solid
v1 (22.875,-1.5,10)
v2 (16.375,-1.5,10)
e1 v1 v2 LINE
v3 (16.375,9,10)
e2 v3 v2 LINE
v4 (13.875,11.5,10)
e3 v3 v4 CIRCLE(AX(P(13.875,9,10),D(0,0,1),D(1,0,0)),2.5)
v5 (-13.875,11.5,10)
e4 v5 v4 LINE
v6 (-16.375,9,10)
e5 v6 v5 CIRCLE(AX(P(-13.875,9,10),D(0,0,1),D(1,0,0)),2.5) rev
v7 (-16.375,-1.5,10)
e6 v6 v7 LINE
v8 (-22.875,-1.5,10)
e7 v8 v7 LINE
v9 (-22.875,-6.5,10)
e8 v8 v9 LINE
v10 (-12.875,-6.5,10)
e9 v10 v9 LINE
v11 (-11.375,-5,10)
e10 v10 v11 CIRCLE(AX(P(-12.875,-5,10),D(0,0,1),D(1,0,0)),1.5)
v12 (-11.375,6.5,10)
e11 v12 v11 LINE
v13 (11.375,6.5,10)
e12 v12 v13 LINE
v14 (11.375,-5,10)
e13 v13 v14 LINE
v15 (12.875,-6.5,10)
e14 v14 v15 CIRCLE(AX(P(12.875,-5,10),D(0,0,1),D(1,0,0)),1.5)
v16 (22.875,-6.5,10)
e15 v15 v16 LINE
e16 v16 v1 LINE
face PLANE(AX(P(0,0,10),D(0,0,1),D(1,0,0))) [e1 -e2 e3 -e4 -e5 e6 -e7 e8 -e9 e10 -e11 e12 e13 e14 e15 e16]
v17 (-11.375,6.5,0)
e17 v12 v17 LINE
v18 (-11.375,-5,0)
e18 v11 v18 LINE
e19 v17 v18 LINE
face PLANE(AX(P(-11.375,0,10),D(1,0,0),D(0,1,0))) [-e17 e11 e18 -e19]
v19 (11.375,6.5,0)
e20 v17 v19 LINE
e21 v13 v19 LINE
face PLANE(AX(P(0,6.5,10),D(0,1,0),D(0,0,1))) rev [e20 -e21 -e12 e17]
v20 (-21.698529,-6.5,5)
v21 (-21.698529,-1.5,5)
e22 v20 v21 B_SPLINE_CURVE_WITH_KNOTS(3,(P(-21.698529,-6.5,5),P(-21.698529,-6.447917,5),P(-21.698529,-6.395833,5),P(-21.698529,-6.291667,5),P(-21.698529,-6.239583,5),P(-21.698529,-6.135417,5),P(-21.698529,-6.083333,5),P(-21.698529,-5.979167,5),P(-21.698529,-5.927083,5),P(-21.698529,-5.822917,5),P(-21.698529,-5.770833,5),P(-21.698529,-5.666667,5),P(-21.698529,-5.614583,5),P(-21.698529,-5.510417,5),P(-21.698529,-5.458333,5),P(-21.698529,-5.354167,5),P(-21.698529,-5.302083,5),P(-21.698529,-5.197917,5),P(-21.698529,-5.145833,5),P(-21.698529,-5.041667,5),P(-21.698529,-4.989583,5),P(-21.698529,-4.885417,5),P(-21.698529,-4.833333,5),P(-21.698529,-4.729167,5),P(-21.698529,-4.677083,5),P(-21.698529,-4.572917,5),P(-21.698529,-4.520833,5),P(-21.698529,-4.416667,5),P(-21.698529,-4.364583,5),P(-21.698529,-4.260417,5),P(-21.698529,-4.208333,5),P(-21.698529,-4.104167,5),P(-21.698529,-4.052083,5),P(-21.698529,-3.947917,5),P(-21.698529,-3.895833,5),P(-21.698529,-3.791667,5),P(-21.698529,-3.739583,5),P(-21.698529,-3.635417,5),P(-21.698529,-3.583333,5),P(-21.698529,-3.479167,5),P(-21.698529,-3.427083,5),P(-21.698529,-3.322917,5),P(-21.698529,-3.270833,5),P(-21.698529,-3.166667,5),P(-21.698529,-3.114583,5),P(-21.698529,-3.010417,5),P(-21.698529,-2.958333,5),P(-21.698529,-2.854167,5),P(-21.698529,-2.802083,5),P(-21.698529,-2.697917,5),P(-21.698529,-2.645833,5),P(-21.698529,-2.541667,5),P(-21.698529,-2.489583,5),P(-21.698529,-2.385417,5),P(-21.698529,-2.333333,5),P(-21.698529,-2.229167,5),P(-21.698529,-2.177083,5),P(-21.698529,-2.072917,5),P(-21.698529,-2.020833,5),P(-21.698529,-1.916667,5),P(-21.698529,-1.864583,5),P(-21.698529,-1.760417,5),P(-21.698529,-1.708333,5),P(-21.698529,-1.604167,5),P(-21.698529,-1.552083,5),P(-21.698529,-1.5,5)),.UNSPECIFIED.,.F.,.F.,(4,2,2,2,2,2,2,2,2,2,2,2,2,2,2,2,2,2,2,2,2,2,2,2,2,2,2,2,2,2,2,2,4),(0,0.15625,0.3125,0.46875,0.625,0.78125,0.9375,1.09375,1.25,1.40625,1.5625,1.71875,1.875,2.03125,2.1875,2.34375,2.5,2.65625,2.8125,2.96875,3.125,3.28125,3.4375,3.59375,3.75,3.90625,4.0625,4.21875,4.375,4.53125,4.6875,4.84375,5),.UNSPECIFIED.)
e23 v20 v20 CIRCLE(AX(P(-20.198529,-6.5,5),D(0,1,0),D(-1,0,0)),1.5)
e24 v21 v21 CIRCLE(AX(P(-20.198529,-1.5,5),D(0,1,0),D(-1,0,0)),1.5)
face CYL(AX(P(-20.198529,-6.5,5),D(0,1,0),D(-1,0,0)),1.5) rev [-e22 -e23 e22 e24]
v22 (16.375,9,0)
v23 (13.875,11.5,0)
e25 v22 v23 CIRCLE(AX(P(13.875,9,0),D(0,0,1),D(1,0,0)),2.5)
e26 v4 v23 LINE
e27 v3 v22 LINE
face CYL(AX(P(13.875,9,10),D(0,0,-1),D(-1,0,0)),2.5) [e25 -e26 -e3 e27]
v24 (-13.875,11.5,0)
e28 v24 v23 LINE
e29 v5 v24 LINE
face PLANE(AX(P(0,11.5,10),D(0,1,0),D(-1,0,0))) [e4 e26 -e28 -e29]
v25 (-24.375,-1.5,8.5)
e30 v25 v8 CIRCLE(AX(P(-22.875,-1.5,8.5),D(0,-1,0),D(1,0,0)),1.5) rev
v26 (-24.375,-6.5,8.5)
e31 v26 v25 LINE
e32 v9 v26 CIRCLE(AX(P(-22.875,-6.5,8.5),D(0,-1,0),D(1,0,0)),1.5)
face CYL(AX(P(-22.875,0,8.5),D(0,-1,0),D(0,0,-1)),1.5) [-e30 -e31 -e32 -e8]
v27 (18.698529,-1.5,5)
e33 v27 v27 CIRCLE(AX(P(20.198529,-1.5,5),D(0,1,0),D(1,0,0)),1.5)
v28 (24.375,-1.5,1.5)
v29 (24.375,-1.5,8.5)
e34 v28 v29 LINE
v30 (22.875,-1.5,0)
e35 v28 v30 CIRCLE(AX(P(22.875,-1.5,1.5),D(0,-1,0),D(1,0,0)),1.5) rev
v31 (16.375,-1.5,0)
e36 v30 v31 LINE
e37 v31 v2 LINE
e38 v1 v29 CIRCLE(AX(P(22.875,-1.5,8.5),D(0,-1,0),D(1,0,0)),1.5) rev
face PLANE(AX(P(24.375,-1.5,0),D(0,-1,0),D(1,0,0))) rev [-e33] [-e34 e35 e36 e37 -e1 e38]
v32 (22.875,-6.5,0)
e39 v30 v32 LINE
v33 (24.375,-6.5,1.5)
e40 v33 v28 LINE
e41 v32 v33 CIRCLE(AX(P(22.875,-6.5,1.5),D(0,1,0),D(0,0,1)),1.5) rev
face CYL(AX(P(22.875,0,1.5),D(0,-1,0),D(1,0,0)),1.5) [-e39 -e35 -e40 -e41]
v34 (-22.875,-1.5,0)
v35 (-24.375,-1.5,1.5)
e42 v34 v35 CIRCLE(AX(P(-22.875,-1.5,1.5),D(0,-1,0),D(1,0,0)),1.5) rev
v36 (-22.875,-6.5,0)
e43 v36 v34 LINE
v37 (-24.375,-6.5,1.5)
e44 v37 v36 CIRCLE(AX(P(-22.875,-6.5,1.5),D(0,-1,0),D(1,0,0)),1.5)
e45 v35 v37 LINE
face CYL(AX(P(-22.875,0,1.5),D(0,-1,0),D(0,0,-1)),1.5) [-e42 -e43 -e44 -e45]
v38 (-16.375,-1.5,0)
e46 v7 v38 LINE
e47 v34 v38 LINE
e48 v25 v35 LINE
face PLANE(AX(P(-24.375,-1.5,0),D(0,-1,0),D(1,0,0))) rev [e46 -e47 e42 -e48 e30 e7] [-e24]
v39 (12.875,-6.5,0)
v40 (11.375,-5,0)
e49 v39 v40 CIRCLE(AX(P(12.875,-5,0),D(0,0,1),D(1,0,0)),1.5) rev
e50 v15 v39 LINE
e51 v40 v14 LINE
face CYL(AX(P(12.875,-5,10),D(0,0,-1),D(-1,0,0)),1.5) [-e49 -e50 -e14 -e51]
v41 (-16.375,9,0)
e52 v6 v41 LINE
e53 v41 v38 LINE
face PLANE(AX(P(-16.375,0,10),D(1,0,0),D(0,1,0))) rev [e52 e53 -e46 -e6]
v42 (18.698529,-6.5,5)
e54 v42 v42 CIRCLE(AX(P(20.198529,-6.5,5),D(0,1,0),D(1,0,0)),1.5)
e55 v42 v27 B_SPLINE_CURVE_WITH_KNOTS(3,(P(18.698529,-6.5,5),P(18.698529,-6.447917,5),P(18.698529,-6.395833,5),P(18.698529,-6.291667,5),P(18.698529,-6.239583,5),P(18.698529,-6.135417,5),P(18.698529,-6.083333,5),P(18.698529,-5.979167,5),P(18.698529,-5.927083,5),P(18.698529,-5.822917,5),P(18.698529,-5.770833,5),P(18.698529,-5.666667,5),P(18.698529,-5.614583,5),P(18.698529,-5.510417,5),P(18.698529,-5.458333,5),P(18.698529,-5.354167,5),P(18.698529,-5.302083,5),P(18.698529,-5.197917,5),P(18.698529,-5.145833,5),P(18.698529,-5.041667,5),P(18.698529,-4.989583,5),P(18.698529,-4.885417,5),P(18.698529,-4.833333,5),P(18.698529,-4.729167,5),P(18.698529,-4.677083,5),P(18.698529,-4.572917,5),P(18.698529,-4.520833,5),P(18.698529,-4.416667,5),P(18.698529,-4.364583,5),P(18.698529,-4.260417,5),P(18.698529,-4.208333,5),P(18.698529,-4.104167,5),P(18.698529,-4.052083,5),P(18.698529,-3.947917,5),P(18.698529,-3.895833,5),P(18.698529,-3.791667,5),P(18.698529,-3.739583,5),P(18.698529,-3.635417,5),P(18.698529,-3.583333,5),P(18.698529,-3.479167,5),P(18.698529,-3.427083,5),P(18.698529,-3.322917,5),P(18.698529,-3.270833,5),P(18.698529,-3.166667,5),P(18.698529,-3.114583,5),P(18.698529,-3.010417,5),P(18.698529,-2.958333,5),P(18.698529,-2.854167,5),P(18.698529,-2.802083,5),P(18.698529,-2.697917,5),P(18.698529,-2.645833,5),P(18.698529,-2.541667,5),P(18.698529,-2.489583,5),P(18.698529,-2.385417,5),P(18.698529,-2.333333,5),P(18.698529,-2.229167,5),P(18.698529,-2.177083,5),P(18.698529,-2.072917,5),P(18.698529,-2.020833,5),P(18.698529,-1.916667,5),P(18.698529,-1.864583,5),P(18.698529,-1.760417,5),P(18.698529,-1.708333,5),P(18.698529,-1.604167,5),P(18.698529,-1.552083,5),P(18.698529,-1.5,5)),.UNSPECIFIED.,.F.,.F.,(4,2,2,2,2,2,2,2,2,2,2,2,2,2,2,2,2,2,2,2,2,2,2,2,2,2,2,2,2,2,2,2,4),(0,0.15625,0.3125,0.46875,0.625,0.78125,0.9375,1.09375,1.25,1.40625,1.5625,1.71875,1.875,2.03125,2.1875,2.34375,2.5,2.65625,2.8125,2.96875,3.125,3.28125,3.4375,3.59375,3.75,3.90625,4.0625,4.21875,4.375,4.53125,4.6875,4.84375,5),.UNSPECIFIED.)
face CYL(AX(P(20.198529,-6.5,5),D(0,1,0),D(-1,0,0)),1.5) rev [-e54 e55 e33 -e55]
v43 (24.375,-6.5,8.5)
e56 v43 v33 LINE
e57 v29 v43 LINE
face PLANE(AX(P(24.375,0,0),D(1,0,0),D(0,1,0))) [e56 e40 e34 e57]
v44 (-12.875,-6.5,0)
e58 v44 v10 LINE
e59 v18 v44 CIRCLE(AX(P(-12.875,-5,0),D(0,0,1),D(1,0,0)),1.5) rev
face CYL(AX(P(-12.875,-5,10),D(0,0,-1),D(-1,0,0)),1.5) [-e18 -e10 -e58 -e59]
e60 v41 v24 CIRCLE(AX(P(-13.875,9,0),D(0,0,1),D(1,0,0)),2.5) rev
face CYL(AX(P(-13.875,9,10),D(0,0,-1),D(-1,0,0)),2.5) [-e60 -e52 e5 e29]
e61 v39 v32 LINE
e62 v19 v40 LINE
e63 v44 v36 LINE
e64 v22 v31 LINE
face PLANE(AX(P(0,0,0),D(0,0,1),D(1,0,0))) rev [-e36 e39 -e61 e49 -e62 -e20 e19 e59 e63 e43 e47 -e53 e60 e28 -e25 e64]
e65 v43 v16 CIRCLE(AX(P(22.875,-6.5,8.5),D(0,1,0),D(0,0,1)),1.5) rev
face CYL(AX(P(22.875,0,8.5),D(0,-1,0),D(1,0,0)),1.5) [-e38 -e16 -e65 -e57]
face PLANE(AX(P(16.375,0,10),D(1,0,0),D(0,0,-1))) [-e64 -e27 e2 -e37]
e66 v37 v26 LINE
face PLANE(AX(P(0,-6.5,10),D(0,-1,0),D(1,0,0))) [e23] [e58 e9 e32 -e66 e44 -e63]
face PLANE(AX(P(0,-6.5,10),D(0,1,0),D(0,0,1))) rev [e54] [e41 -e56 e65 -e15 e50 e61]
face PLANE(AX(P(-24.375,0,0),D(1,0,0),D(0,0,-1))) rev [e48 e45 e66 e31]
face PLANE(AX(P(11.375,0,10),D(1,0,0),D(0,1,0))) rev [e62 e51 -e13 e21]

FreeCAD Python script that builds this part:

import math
import FreeCAD as App
import Part
import Sketcher

V = App.Vector


def edges_at(feature, points):
    """Names of the edges that pass closest to the given points."""
    edges = feature.Shape.Edges
    near = lambda p: min(range(len(edges)), key=lambda i: edges[i].distToShape(Part.Vertex(*p))[0])
    return sorted({f"Edge{near(p) + 1}" for p in points})


def add_polygon(sketch, points):
    """Adds a closed chain of lines whose ends are joined by coincident constraints."""
    first, n = sketch.GeometryCount, len(points)
    for a, b in zip(points, points[1:] + points[:1]):
        sketch.addGeometry(Part.LineSegment(App.Vector(*a, 0), App.Vector(*b, 0)), False)
    for i in range(n):
        sketch.addConstraint(Sketcher.Constraint("Coincident", first + i, 2, first + (i + 1) % n, 1))

doc = App.newDocument("Part")
body = doc.addObject("PartDesign::Body", "Body")

sketch1 = body.newObject("Sketcher::SketchObject", "Sketch")
sketch1.AttachmentSupport = (doc.getObject("XY_Plane"), [""])
sketch1.MapMode = "FlatFace"
sketch1.addGeometry([
    Part.ArcOfCircle(Part.Circle(V(-13.9, 9, 0), V(0, 0, 1), 2.5), math.radians(90), math.radians(180)),
    Part.LineSegment(V(-16.4, 9, 0), V(-16.4, -6.5, 0)),
    Part.LineSegment(V(-16.4, -6.5, 0), V(-11.4, -6.5, 0)),
    Part.LineSegment(V(-11.4, -6.5, 0), V(-11.4, 6.5, 0)),
    Part.LineSegment(V(-11.4, 6.5, 0), V(11.4, 6.5, 0)),
    Part.LineSegment(V(11.4, 6.5, 0), V(11.4, -6.5, 0)),
    Part.LineSegment(V(11.4, -6.5, 0), V(16.4, -6.5, 0)),
    Part.LineSegment(V(16.4, -6.5, 0), V(16.4, 9, 0)),
    Part.ArcOfCircle(Part.Circle(V(13.9, 9, 0), V(0, 0, 1), 2.5), math.radians(0), math.radians(90)),
    Part.LineSegment(V(13.9, 11.5, 0), V(-13.9, 11.5, 0)),
], False)
sketch1.addConstraint([
    Sketcher.Constraint("Tangent", 0, 2, 1, 1),
    Sketcher.Constraint("Coincident", 1, 2, 2, 1),
    Sketcher.Constraint("Coincident", 2, 2, 3, 1),
    Sketcher.Constraint("Coincident", 3, 2, 4, 1),
    Sketcher.Constraint("Coincident", 4, 2, 5, 1),
    Sketcher.Constraint("Coincident", 5, 2, 6, 1),
    Sketcher.Constraint("Coincident", 6, 2, 7, 1),
    Sketcher.Constraint("Tangent", 7, 2, 8, 1),
    Sketcher.Constraint("Tangent", 8, 2, 9, 1),
    Sketcher.Constraint("Tangent", 9, 2, 0, 1),
    Sketcher.Constraint("Vertical", 1),
    Sketcher.Constraint("Horizontal", 2),
    Sketcher.Constraint("Vertical", 3),
    Sketcher.Constraint("Horizontal", 4),
    Sketcher.Constraint("Vertical", 5),
    Sketcher.Constraint("Horizontal", 6),
    Sketcher.Constraint("Vertical", 7),
    Sketcher.Constraint("Horizontal", 9),
    Sketcher.Constraint("Equal", 0, 8),
    Sketcher.Constraint("Symmetric", 2, 2, 4, 2, -1, 1),
    Sketcher.Constraint("Symmetric", 1, 2, 6, 2, -2),
    Sketcher.Constraint("Radius", 0, 2.5),
    Sketcher.Constraint("DistanceX", 2, 1, 2, 2, 5.0),
    Sketcher.Constraint("DistanceY", 3, 1, 3, 2, 13.0),
    Sketcher.Constraint("DistanceY", 1, 2, 1, 1, 15.5),
    Sketcher.Constraint("DistanceX", 4, 1, 4, 2, 22.75),
])
pad1 = body.newObject("PartDesign::Pad", "Pad")
pad1.Profile = sketch1
pad1.Length = 10

sketch2 = body.newObject("Sketcher::SketchObject", "Sketch001")
sketch2.AttachmentSupport = (doc.getObject("YZ_Plane"), [""])
sketch2.MapMode = "FlatFace"
sketch2.AttachmentOffset = App.Placement(V(0, 0, -16.375), App.Rotation())
add_polygon(sketch2, [(-2, 0), (-6, 0), (-6, 10), (-2, 10)])
sketch2.addConstraint([
    Sketcher.Constraint("Horizontal", 0),
    Sketcher.Constraint("Vertical", 1),
    Sketcher.Constraint("Horizontal", 2),
    Sketcher.Constraint("Vertical", 3),
    Sketcher.Constraint("PointOnObject", 0, 2, -1),
    Sketcher.Constraint("DistanceX", 0, 2, 0, 1, 5.0),
    Sketcher.Constraint("DistanceY", 1, 1, 1, 2, 10.0),
    Sketcher.Constraint("DistanceX", 0, 2, -1, 1, 6.5),
])
pad2 = body.newObject("PartDesign::Pad", "Pad001")
pad2.Profile = sketch2
pad2.Length = 8
pad2.Reversed = True

sketch3 = body.newObject("Sketcher::SketchObject", "Sketch002")
sketch3.AttachmentSupport = (doc.getObject("YZ_Plane"), [""])
sketch3.MapMode = "FlatFace"
sketch3.AttachmentOffset = App.Placement(V(0, 0, 16.375), App.Rotation())
add_polygon(sketch3, [(-2, 10), (-6, 10), (-6, 0), (-2, 0)])
sketch3.addConstraint([
    Sketcher.Constraint("Horizontal", 0),
    Sketcher.Constraint("Vertical", 1),
    Sketcher.Constraint("Horizontal", 2),
    Sketcher.Constraint("Vertical", 3),
    Sketcher.Constraint("PointOnObject", 1, 2, -1),
    Sketcher.Constraint("DistanceX", 0, 2, 0, 1, 5.0),
    Sketcher.Constraint("DistanceY", 1, 2, 1, 1, 10.0),
    Sketcher.Constraint("DistanceX", 0, 2, -1, 1, 6.5),
])
pad3 = body.newObject("PartDesign::Pad", "Pad002")
pad3.Profile = sketch3
pad3.Length = 8
doc.recompute()

fillet = body.newObject("PartDesign::Fillet", "Fillet")
fillet.Base = (pad3, edges_at(pad3, [
    (-24.375, -4, 0),
    (-24.375, -4, 10),
    (24.375, -4, 10),
    (24.375, -4, 0),
]))
fillet.Radius = 1.5
doc.recompute()

fillet2 = body.newObject("PartDesign::Fillet", "Fillet001")
fillet2.Base = (fillet, edges_at(fillet, [(11.375, -6.5, 5), (-11.375, -6.5, 5)]))
fillet2.Radius = 1.5

sketch4 = body.newObject("Sketcher::SketchObject", "Sketch003")
sketch4.AttachmentSupport = (doc.getObject("XZ_Plane"), [""])
sketch4.MapMode = "FlatFace"
sketch4.AttachmentOffset = App.Placement(V(0, 0, 1.5), App.Rotation())
sketch4.addGeometry([
    Part.Circle(V(-20.2, 5, 0), V(0, 0, 1), 1.5),
    Part.Circle(V(20.2, 5, 0), V(0, 0, 1), 1.5),
], False)
sketch4.addConstraint([
    Sketcher.Constraint("Equal", 0, 1),
    Sketcher.Constraint("Symmetric", 0, 3, 1, 3, -2),
    Sketcher.Constraint("Diameter", 0, 3.0),
    Sketcher.Constraint("DistanceY", -1, 1, 0, 3, 5.0),
    Sketcher.Constraint("DistanceX", 0, 3, -1, 1, 20.198529),
])
pocket1 = body.newObject("PartDesign::Pocket", "Pocket")
pocket1.Profile = sketch4
pocket1.Type = "ThroughAll"
pocket1.Reversed = True

doc.recompute()
